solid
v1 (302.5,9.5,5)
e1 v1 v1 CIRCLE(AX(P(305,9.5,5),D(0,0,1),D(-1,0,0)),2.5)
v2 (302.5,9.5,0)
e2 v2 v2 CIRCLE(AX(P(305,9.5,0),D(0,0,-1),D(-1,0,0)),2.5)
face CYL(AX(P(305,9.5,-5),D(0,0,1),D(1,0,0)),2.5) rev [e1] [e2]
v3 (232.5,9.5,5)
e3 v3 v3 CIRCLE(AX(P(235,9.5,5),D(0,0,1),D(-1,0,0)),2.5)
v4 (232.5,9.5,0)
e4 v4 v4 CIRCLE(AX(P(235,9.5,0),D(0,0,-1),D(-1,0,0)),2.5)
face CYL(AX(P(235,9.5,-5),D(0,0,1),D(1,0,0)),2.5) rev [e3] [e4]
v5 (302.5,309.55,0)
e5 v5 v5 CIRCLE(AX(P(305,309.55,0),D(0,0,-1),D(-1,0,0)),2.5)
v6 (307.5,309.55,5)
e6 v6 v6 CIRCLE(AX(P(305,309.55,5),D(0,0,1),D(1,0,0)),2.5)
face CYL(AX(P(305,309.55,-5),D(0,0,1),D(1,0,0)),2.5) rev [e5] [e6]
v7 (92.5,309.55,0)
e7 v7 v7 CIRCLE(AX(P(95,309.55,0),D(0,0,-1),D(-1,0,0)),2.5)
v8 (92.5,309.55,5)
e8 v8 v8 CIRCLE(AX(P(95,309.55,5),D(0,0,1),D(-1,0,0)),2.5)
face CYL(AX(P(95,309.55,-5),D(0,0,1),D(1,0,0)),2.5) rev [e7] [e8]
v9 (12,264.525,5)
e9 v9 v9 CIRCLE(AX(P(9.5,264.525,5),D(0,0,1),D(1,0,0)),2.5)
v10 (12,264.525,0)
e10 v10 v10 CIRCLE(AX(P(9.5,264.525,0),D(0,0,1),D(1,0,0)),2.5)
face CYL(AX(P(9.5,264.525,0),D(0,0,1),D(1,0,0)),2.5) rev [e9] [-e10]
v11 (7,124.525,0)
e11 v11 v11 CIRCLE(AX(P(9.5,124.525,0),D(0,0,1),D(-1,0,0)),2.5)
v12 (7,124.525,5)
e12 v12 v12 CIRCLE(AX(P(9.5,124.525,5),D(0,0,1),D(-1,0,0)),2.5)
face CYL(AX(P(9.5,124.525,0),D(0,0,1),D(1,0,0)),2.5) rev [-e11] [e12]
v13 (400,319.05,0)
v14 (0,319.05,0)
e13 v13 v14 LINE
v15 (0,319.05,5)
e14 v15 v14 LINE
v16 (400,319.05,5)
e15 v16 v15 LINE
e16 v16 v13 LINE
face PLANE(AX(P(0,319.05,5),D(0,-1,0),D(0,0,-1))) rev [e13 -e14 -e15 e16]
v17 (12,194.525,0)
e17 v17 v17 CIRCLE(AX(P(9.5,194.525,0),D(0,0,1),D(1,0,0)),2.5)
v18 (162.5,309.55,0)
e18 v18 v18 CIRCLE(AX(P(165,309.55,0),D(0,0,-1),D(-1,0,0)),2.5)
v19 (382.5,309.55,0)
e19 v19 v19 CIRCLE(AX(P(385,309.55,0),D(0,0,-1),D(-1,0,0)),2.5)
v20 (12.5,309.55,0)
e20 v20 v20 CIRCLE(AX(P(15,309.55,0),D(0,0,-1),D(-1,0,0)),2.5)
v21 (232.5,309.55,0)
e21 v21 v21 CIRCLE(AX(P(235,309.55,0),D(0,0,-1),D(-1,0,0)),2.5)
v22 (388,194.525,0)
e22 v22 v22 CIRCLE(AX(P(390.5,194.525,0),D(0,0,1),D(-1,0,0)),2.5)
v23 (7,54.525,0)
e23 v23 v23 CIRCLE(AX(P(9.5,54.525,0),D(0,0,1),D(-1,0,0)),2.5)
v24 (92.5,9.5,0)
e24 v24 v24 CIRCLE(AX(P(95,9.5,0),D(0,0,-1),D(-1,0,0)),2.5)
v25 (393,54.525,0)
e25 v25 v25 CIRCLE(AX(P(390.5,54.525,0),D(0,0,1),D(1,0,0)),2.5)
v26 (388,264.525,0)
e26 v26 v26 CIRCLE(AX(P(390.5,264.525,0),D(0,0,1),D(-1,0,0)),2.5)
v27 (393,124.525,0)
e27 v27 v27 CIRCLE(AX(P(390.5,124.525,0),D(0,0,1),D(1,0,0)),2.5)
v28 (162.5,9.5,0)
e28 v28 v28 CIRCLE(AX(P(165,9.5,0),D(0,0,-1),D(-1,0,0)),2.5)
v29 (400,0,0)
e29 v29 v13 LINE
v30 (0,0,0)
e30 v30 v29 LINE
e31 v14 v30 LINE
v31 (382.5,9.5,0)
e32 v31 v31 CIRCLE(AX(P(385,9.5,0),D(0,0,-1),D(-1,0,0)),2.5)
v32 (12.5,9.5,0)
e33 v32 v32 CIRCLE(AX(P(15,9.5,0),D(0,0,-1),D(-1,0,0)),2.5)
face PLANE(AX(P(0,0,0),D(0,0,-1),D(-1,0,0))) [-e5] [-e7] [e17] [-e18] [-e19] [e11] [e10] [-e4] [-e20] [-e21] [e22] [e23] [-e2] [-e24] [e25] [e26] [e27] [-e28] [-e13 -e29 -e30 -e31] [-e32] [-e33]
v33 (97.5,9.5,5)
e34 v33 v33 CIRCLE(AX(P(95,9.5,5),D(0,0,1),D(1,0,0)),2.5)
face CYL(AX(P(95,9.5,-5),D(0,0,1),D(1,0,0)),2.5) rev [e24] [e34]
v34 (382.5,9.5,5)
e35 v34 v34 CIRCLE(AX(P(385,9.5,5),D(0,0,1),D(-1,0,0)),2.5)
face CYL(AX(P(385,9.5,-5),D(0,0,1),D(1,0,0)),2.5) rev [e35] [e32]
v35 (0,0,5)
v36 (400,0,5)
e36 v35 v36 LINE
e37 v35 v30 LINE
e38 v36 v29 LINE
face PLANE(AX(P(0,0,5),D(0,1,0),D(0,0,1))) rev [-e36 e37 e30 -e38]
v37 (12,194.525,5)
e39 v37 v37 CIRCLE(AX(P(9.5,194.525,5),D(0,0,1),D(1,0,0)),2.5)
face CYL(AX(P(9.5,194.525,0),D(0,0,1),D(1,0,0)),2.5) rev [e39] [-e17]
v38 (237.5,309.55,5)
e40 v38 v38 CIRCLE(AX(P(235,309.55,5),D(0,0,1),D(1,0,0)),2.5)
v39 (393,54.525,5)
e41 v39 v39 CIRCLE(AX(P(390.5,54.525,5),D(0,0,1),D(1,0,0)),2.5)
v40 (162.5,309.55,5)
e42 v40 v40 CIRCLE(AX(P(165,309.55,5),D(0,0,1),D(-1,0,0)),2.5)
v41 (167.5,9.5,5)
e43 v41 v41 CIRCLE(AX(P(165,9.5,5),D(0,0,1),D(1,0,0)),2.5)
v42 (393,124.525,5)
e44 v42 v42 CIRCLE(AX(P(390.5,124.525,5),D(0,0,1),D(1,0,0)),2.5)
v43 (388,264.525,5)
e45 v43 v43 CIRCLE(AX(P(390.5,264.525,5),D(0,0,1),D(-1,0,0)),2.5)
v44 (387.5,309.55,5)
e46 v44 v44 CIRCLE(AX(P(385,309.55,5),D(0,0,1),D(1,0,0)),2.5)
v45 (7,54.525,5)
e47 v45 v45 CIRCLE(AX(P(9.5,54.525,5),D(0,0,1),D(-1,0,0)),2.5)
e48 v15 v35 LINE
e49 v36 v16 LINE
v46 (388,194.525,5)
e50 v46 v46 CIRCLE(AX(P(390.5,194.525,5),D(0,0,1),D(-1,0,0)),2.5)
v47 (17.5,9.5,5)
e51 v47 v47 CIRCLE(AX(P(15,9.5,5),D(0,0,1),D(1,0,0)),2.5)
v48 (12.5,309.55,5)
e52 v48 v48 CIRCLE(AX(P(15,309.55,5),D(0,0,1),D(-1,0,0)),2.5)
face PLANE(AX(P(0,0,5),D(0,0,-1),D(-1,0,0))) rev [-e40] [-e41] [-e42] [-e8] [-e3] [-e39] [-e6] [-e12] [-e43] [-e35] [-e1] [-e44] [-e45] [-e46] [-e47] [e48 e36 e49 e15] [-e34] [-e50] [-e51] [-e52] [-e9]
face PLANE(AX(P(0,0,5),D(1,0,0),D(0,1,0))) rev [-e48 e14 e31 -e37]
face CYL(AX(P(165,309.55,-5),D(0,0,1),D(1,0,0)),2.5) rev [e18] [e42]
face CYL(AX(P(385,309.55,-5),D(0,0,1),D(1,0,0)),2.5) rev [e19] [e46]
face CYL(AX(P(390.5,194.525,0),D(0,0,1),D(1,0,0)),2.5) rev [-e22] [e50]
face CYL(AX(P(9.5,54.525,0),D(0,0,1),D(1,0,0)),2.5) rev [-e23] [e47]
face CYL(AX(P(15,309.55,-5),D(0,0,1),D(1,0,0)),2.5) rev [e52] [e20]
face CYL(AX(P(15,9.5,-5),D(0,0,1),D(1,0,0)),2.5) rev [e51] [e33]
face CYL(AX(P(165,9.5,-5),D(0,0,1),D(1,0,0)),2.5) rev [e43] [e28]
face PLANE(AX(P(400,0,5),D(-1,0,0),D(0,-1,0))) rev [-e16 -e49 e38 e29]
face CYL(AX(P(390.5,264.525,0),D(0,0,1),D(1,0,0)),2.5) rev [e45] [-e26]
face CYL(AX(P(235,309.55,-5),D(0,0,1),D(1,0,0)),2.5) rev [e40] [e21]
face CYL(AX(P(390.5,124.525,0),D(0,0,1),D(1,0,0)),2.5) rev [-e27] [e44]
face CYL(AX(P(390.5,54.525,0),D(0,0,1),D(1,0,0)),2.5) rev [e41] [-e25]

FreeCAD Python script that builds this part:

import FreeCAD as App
import Part
import Sketcher

V = App.Vector
Q = App.Units.Quantity

doc = App.newDocument("Part")
body = doc.addObject("PartDesign::Body", "Body")

# Sketch on XY plane
sketch1 = body.newObject("Sketcher::SketchObject", "Sketch")
sketch1.AttachmentSupport = (doc.getObject("XY_Plane"), [""])
sketch1.MapMode = "FlatFace"
sketch1.addGeometry([
    Part.LineSegment(V(0, 319, 0), V(0, 0, 0)),
    Part.LineSegment(V(0, 0, 0), V(400, 0, 0)),
    Part.LineSegment(V(400, 0, 0), V(400, 319, 0)),
    Part.LineSegment(V(400, 319, 0), V(0, 319, 0)),
], False)
sketch1.addConstraint([
    Sketcher.Constraint("Coincident", 0, 2, 1, 1),
    Sketcher.Constraint("Coincident", 1, 2, 2, 1),
    Sketcher.Constraint("Coincident", 2, 2, 3, 1),
    Sketcher.Constraint("Coincident", 3, 2, 0, 1),
    Sketcher.Constraint("Vertical", 0),
    Sketcher.Constraint("Horizontal", 1),
    Sketcher.Constraint("Vertical", 2),
    Sketcher.Constraint("Horizontal", 3),
    Sketcher.Constraint("Coincident", 0, 2, -1, 1),
    Sketcher.Constraint("DistanceX", 1, 1, 1, 2, Q("400 mm")),
    Sketcher.Constraint("DistanceY", 0, 2, 0, 1, Q("319.05 mm")),
])
pad1 = body.newObject("PartDesign::Pad", "Pad")
pad1.Profile = sketch1
pad1.Length = 5

# Sketch on XY plane
sketch2 = body.newObject("Sketcher::SketchObject", "Sketch001")
sketch2.AttachmentSupport = (doc.getObject("XY_Plane"), [""])
sketch2.MapMode = "FlatFace"
sketch2.AttachmentOffset = App.Placement(V(0, 0, 5), App.Rotation())
sketch2.addGeometry([
    Part.Circle(V(15, 9.5, 0), V(0, 0, 1), 2.5),  # 0
    Part.Circle(V(95, 9.5, 0), V(0, 0, 1), 2.5),  # 1
    Part.Circle(V(165, 9.5, 0), V(0, 0, 1), 2.5),  # 2
    Part.Circle(V(235, 9.5, 0), V(0, 0, 1), 2.5),  # 3
    Part.Circle(V(305, 9.5, 0), V(0, 0, 1), 2.5),  # 4
    Part.Circle(V(385, 9.5, 0), V(0, 0, 1), 2.5),  # 5
    Part.Circle(V(385, 309.6, 0), V(0, 0, 1), 2.5),  # 6
    Part.Circle(V(305, 309.6, 0), V(0, 0, 1), 2.5),  # 7
    Part.Circle(V(235, 309.6, 0), V(0, 0, 1), 2.5),  # 8
    Part.Circle(V(165, 309.6, 0), V(0, 0, 1), 2.5),  # 9
    Part.Circle(V(95, 309.6, 0), V(0, 0, 1), 2.5),  # 10
    Part.Circle(V(15, 309.6, 0), V(0, 0, 1), 2.5),  # 11
], False)
sketch2.addConstraint([
    Sketcher.Constraint("Equal", 0, 1),
    Sketcher.Constraint("Equal", 1, 2),
    Sketcher.Constraint("Equal", 2, 3),
    Sketcher.Constraint("Equal", 3, 4),
    Sketcher.Constraint("Equal", 4, 5),
    Sketcher.Constraint("Equal", 5, 6),
    Sketcher.Constraint("Equal", 6, 7),
    Sketcher.Constraint("Equal", 7, 8),
    Sketcher.Constraint("Equal", 8, 9),
    Sketcher.Constraint("Equal", 9, 10),
    Sketcher.Constraint("Equal", 10, 11),
    Sketcher.Constraint("Horizontal", 0, 3, 1, 3),
    Sketcher.Constraint("Horizontal", 1, 3, 2, 3),
    Sketcher.Constraint("Horizontal", 2, 3, 3, 3),
    Sketcher.Constraint("Horizontal", 3, 3, 4, 3),
    Sketcher.Constraint("Horizontal", 4, 3, 5, 3),
    Sketcher.Constraint("Horizontal", 6, 3, 7, 3),
    Sketcher.Constraint("Horizontal", 7, 3, 8, 3),
    Sketcher.Constraint("Horizontal", 8, 3, 9, 3),
    Sketcher.Constraint("Horizontal", 9, 3, 10, 3),
    Sketcher.Constraint("Horizontal", 10, 3, 11, 3),
    Sketcher.Constraint("Vertical", 5, 3, 6, 3),
    Sketcher.Constraint("Vertical", 4, 3, 7, 3),
    Sketcher.Constraint("Vertical", 3, 3, 8, 3),
    Sketcher.Constraint("Vertical", 2, 3, 9, 3),
    Sketcher.Constraint("Vertical", 1, 3, 10, 3),
    Sketcher.Constraint("Vertical", 0, 3, 11, 3),
    Sketcher.Constraint("Diameter", 0, Q("5 mm")),
    Sketcher.Constraint("DistanceX", -1, 1, 0, 3, Q("15 mm")),
    Sketcher.Constraint("DistanceX", -1, 1, 1, 3, Q("95 mm")),
    Sketcher.Constraint("DistanceX", -1, 1, 2, 3, Q("165 mm")),
    Sketcher.Constraint("DistanceX", -1, 1, 3, 3, Q("235 mm")),
    Sketcher.Constraint("DistanceX", -1, 1, 4, 3, Q("305 mm")),
    Sketcher.Constraint("DistanceX", -1, 1, 5, 3, Q("385 mm")),
    Sketcher.Constraint("DistanceY", -1, 1, 0, 3, Q("9.5 mm")),
    Sketcher.Constraint("DistanceY", -1, 1, 6, 3, Q("309.55 mm")),
])
pocket1 = body.newObject("PartDesign::Pocket", "Pocket")
pocket1.Profile = sketch2
pocket1.Length = 10

# Sketch on XY plane
sketch3 = body.newObject("Sketcher::SketchObject", "Sketch002")
sketch3.AttachmentSupport = (doc.getObject("XY_Plane"), [""])
sketch3.MapMode = "FlatFace"
sketch3.AttachmentOffset = App.Placement(V(0, 0, 5), App.Rotation())
sketch3.addGeometry([
    Part.Circle(V(9.5, 264.5, 0), V(0, 0, 1), 2.5),  # 0
    Part.Circle(V(9.5, 194.5, 0), V(0, 0, 1), 2.5),  # 1
    Part.Circle(V(9.5, 124.5, 0), V(0, 0, 1), 2.5),  # 2
    Part.Circle(V(9.5, 54.5, 0), V(0, 0, 1), 2.5),  # 3
    Part.Circle(V(390.5, 54.5, 0), V(0, 0, 1), 2.5),  # 4
    Part.Circle(V(390.5, 124.5, 0), V(0, 0, 1), 2.5),  # 5
    Part.Circle(V(390.5, 194.5, 0), V(0, 0, 1), 2.5),  # 6
    Part.Circle(V(390.5, 264.5, 0), V(0, 0, 1), 2.5),  # 7
], False)
sketch3.addConstraint([
    Sketcher.Constraint("Equal", 0, 1),
    Sketcher.Constraint("Equal", 1, 2),
    Sketcher.Constraint("Equal", 2, 3),
    Sketcher.Constraint("Equal", 3, 4),
    Sketcher.Constraint("Equal", 4, 5),
    Sketcher.Constraint("Equal", 5, 6),
    Sketcher.Constraint("Equal", 6, 7),
    Sketcher.Constraint("Horizontal", 3, 3, 4, 3),
    Sketcher.Constraint("Horizontal", 2, 3, 5, 3),
    Sketcher.Constraint("Horizontal", 1, 3, 6, 3),
    Sketcher.Constraint("Horizontal", 0, 3, 7, 3),
    Sketcher.Constraint("Vertical", 0, 3, 1, 3),
    Sketcher.Constraint("Vertical", 1, 3, 2, 3),
    Sketcher.Constraint("Vertical", 2, 3, 3, 3),
    Sketcher.Constraint("Vertical", 4, 3, 5, 3),
    Sketcher.Constraint("Vertical", 5, 3, 6, 3),
    Sketcher.Constraint("Vertical", 6, 3, 7, 3),
    Sketcher.Constraint("Diameter", 0, Q("5 mm")),
    Sketcher.Constraint("DistanceY", 1, 3, 0, 3, Q("70 mm")),
    Sketcher.Constraint("DistanceY", 2, 3, 1, 3, Q("70 mm")),
    Sketcher.Constraint("DistanceY", 3, 3, 2, 3, Q("70 mm")),
    Sketcher.Constraint("DistanceX", 3, 3, 4, 3, Q("381 mm")),
    Sketcher.Constraint("DistanceX", -1, 1, 0, 3, Q("9.5 mm")),
    Sketcher.Constraint("DistanceY", -1, 1, 0, 3, Q("264.525 mm")),
])
pocket2 = body.newObject("PartDesign::Pocket", "Pocket001")
pocket2.Profile = sketch3
pocket2.Type = "ThroughAll"

doc.recompute()
